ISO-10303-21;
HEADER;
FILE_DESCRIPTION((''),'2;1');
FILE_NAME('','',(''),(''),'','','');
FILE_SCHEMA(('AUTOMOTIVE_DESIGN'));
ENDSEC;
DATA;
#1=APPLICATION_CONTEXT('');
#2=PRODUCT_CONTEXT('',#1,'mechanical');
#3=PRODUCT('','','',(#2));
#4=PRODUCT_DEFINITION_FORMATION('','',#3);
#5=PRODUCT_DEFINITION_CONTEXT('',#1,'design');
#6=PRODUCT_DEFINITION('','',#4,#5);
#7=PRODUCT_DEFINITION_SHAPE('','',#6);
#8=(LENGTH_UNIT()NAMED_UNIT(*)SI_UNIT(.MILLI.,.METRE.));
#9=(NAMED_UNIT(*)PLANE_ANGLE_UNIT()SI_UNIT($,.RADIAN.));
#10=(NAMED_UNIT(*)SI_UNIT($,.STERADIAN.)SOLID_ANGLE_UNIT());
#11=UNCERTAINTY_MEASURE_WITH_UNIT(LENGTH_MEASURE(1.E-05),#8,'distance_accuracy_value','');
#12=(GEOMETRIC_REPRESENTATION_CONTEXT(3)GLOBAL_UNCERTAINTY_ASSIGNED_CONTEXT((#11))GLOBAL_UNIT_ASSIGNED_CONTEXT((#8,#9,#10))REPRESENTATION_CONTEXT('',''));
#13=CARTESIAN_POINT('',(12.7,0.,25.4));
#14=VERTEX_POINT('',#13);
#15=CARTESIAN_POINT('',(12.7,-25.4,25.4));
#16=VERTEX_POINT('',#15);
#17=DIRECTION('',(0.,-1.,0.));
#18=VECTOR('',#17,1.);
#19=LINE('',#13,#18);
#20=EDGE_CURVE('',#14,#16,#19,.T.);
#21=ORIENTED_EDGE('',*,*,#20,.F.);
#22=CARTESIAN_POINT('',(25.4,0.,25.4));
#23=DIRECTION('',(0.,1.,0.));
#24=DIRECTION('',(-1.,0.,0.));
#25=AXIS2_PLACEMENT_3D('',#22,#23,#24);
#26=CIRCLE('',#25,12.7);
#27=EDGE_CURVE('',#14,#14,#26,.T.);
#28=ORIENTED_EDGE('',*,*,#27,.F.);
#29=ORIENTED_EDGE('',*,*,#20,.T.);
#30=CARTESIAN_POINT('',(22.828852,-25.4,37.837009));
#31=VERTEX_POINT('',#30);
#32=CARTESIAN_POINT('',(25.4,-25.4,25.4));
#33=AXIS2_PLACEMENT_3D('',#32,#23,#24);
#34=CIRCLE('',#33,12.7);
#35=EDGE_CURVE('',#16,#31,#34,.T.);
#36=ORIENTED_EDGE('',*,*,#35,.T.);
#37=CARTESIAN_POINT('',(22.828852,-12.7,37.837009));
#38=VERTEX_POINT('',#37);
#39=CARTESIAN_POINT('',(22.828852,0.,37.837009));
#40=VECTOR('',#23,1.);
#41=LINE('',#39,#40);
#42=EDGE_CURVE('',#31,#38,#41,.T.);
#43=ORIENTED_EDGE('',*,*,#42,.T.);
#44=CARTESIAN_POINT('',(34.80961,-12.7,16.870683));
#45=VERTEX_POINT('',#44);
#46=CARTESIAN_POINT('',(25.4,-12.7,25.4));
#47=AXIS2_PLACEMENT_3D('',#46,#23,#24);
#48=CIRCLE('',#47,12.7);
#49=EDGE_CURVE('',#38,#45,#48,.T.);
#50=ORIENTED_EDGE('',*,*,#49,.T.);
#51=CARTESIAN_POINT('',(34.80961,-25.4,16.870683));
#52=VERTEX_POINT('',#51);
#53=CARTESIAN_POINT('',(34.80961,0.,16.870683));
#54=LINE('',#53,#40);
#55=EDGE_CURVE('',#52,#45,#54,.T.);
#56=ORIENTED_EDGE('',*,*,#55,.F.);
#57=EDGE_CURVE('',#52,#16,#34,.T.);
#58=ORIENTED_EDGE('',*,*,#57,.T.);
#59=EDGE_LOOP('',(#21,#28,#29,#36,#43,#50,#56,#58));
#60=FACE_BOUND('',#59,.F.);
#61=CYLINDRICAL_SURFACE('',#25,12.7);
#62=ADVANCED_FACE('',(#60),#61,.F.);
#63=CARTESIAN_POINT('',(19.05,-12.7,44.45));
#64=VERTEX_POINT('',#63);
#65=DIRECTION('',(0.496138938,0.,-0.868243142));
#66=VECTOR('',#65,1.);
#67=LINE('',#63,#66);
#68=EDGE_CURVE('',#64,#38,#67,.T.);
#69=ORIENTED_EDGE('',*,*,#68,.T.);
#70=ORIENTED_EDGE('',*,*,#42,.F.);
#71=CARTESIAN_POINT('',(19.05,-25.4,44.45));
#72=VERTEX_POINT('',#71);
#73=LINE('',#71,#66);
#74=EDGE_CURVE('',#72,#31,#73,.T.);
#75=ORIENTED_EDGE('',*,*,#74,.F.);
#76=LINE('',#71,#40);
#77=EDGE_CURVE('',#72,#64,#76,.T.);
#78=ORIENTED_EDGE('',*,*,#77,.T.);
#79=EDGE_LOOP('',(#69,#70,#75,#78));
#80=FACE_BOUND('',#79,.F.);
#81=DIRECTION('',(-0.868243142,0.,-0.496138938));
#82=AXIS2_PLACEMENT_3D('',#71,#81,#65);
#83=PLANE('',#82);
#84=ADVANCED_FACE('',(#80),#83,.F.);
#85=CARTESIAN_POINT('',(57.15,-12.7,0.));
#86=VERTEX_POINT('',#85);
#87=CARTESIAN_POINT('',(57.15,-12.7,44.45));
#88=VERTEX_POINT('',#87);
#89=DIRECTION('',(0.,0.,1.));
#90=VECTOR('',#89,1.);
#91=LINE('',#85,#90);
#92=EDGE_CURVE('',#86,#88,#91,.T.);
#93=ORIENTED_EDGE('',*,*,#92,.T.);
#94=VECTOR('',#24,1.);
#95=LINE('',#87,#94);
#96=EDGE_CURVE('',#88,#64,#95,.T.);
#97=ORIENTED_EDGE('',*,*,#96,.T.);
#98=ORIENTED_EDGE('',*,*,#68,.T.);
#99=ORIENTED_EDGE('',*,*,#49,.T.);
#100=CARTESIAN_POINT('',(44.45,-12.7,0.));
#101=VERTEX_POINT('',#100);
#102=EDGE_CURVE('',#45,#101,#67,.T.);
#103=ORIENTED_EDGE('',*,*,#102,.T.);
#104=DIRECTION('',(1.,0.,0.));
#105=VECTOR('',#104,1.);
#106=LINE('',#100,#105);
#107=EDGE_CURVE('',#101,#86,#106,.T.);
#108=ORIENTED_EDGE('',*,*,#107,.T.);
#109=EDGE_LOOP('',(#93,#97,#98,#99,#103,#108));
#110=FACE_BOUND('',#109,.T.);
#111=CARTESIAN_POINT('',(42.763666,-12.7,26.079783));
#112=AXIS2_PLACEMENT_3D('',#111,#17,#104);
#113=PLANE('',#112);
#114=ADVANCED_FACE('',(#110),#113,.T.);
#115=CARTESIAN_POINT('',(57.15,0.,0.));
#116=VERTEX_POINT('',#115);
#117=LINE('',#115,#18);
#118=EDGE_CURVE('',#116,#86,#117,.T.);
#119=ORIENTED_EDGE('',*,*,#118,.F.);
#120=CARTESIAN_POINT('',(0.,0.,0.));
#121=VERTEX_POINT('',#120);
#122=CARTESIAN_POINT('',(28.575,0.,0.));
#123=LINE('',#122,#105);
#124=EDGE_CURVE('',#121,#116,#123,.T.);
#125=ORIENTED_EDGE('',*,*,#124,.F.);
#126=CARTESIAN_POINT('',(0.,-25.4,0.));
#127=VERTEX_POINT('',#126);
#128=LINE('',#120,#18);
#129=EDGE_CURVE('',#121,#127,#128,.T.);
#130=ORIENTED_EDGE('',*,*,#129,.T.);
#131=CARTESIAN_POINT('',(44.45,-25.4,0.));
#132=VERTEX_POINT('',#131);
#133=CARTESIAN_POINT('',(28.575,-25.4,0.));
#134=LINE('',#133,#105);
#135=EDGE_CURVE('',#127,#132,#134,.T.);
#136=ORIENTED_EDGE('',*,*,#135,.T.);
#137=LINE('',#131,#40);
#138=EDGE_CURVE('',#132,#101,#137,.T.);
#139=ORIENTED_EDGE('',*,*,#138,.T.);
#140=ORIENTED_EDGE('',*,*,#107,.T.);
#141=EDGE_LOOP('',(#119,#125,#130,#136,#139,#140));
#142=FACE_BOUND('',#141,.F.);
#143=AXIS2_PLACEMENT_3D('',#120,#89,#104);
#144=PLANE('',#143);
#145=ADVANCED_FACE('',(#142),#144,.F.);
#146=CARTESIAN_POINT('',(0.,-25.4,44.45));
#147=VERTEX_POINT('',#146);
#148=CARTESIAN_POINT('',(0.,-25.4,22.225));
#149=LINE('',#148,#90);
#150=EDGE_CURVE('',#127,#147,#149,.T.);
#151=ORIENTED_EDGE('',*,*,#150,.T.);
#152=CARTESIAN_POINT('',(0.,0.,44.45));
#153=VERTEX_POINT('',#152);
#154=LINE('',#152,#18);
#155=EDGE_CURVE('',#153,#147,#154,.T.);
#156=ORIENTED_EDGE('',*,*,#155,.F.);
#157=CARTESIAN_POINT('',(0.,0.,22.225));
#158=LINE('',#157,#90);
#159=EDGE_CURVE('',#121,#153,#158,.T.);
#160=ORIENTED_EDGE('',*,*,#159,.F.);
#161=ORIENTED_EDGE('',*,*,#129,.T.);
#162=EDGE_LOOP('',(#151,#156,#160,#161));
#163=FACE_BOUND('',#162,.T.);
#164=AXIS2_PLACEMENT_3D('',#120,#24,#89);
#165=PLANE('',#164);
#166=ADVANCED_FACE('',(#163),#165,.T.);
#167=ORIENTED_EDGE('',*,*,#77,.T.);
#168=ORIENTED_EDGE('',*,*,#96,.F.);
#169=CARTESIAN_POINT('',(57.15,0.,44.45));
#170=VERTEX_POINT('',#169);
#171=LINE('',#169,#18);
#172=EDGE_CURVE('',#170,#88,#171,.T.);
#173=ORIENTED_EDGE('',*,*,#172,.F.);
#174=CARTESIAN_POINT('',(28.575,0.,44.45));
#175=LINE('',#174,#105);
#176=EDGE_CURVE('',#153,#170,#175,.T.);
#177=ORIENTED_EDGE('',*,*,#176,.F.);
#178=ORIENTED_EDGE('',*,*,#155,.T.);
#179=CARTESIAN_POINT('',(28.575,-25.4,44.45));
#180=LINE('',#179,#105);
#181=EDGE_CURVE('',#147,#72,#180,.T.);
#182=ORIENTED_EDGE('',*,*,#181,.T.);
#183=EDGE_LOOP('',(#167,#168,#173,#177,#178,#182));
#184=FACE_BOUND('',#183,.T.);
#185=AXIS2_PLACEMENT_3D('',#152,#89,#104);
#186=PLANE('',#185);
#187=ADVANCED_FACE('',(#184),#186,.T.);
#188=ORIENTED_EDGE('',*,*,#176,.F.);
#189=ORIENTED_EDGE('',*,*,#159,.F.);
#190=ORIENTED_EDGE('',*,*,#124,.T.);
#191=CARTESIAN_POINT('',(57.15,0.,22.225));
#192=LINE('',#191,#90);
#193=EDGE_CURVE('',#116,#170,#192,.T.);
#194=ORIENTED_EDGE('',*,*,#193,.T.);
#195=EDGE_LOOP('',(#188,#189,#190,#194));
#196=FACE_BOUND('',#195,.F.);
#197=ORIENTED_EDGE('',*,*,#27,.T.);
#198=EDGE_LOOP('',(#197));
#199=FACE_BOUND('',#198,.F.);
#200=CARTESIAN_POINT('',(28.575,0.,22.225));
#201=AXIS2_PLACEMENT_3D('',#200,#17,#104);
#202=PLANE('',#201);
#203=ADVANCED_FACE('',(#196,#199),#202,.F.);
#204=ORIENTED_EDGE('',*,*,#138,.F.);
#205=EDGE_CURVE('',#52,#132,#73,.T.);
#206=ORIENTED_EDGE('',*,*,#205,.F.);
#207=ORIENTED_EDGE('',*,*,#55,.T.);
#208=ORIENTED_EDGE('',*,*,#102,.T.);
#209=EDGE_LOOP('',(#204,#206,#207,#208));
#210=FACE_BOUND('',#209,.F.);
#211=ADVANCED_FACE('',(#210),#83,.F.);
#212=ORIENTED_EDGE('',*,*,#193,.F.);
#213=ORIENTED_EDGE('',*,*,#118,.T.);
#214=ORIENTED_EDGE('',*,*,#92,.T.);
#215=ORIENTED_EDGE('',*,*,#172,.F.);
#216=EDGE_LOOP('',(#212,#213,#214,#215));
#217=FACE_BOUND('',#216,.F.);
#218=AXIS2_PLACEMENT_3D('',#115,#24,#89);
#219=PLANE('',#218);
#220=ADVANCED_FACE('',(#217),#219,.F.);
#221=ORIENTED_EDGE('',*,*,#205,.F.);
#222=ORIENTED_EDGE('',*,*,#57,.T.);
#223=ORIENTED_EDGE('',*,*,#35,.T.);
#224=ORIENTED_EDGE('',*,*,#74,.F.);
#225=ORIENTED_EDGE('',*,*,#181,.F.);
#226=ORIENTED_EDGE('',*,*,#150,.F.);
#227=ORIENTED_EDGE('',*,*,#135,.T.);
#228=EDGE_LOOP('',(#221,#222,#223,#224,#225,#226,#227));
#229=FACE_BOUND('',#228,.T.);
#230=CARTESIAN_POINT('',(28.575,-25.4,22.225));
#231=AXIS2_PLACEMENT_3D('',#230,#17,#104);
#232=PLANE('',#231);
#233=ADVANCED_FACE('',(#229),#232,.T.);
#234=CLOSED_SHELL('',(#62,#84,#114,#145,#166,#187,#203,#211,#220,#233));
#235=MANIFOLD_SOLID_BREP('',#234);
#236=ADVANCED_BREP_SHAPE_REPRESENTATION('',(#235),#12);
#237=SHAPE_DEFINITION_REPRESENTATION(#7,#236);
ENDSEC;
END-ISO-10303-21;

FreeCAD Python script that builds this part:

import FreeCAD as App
import Part
import Sketcher
Q = App.Units.Quantity

doc = App.newDocument("Part")
params = doc.addObject("Spreadsheet::Sheet", "Params")
for row, (alias, value) in enumerate([
    ("sketch1_width", "2.25 in"),
    ("sketch1_height", "1.75 in"),
    ("pad1_length", "1 in"),
    ("sketch2_width", "1.5 in"),
    ("sketch2_width2", "0.5 in"),
    ("sketch2_height", "1.75 in"),
    ("pocket1_length", "0.5 in"),
    ("sketch3_diameter", "1 in"),
    ("pocket2_length", "1 in"),
], start=1):
    params.set(f"A{row}", alias)
    params.set(f"B{row}", "=" + value)
    params.setAlias(f"B{row}", alias)

body = doc.addObject("PartDesign::Body", "Body")

sketch1 = body.newObject("Sketcher::SketchObject", "Sketch")
sketch1.AttachmentSupport = (doc.getObject("XZ_Plane"), [""])
sketch1.MapMode = "FlatFace"
sketch1.addGeometry([
    Part.LineSegment(App.Vector(0, 44, 0), App.Vector(0, 0, 0)),
    Part.LineSegment(App.Vector(0, 0, 0), App.Vector(57, 0, 0)),
    Part.LineSegment(App.Vector(57, 0, 0), App.Vector(57, 44, 0)),
    Part.LineSegment(App.Vector(57, 44, 0), App.Vector(0, 44, 0)),
], False)
sketch1.addConstraint([
    Sketcher.Constraint("Coincident", 0, 2, 1, 1),
    Sketcher.Constraint("Coincident", 1, 2, 2, 1),
    Sketcher.Constraint("Coincident", 2, 2, 3, 1),
    Sketcher.Constraint("Coincident", 3, 2, 0, 1),
    Sketcher.Constraint("Vertical", 0),
    Sketcher.Constraint("Horizontal", 1),
    Sketcher.Constraint("Vertical", 2),
    Sketcher.Constraint("Horizontal", 3),
    Sketcher.Constraint("Coincident", 0, 2, -1, 1),
    Sketcher.Constraint("DistanceX", 1, 1, 1, 2, Q("2.25 in")),
    Sketcher.Constraint("DistanceY", 0, 2, 0, 1, Q("1.75 in")),
])
sketch1.setExpression("Constraints[9]", "Params.sketch1_width")
sketch1.setExpression("Constraints[10]", "Params.sketch1_height")
pad1 = body.newObject("PartDesign::Pad", "Pad")
pad1.Profile = sketch1
pad1.setExpression("Length", "Params.pad1_length")

sketch2 = body.newObject("Sketcher::SketchObject", "Sketch001")
sketch2.AttachmentSupport = (doc.getObject("XZ_Plane"), [""])
sketch2.MapMode = "FlatFace"
sketch2.AttachmentOffset = App.Placement(App.Vector(0, 0, 1 * 25.4), App.Rotation())
sketch2.addGeometry([
    Part.LineSegment(App.Vector(57, 44, 0), App.Vector(19, 44, 0)),
    Part.LineSegment(App.Vector(19, 44, 0), App.Vector(44, 0, 0)),
    Part.LineSegment(App.Vector(44, 0, 0), App.Vector(57, 0, 0)),
    Part.LineSegment(App.Vector(57, 0, 0), App.Vector(57, 44, 0)),
], False)
sketch2.addConstraint([
    Sketcher.Constraint("Coincident", 0, 2, 1, 1),
    Sketcher.Constraint("Coincident", 1, 2, 2, 1),
    Sketcher.Constraint("Coincident", 2, 2, 3, 1),
    Sketcher.Constraint("Coincident", 3, 2, 0, 1),
    Sketcher.Constraint("Horizontal", 0),
    Sketcher.Constraint("Horizontal", 2),
    Sketcher.Constraint("Vertical", 3),
    Sketcher.Constraint("PointOnObject", 1, 2, -1),
    Sketcher.Constraint("DistanceX", 0, 2, 0, 1, Q("1.5 in")),
    Sketcher.Constraint("DistanceX", 2, 1, 2, 2, Q("0.5 in")),
    Sketcher.Constraint("DistanceY", 3, 1, 3, 2, Q("1.75 in")),
    Sketcher.Constraint("DistanceX", -1, 1, 0, 2, Q("0.75 in")),
])
sketch2.setExpression("Constraints[8]", "Params.sketch2_width")
sketch2.setExpression("Constraints[9]", "Params.sketch2_width2")
sketch2.setExpression("Constraints[10]", "Params.sketch2_height")
pocket1 = body.newObject("PartDesign::Pocket", "Pocket")
pocket1.Profile = sketch2
pocket1.setExpression("Length", "Params.pocket1_length")

sketch3 = body.newObject("Sketcher::SketchObject", "Sketch002")
sketch3.AttachmentSupport = (doc.getObject("XZ_Plane"), [""])
sketch3.MapMode = "FlatFace"
sketch3.addGeometry(Part.Circle(App.Vector(25, 25, 0), App.Vector(0, 0, 1), 13), False)
sketch3.addConstraint([
    Sketcher.Constraint("Diameter", 0, Q("1 in")),
    Sketcher.Constraint("DistanceX", -1, 1, 0, 3, Q("1 in")),
    Sketcher.Constraint("DistanceY", -1, 1, 0, 3, Q("1 in")),
])
sketch3.setExpression("Constraints[0]", "Params.sketch3_diameter")
pocket2 = body.newObject("PartDesign::Pocket", "Pocket001")
pocket2.Profile = sketch3
pocket2.setExpression("Length", "Params.pocket2_length")
pocket2.Reversed = True

doc.recompute()
